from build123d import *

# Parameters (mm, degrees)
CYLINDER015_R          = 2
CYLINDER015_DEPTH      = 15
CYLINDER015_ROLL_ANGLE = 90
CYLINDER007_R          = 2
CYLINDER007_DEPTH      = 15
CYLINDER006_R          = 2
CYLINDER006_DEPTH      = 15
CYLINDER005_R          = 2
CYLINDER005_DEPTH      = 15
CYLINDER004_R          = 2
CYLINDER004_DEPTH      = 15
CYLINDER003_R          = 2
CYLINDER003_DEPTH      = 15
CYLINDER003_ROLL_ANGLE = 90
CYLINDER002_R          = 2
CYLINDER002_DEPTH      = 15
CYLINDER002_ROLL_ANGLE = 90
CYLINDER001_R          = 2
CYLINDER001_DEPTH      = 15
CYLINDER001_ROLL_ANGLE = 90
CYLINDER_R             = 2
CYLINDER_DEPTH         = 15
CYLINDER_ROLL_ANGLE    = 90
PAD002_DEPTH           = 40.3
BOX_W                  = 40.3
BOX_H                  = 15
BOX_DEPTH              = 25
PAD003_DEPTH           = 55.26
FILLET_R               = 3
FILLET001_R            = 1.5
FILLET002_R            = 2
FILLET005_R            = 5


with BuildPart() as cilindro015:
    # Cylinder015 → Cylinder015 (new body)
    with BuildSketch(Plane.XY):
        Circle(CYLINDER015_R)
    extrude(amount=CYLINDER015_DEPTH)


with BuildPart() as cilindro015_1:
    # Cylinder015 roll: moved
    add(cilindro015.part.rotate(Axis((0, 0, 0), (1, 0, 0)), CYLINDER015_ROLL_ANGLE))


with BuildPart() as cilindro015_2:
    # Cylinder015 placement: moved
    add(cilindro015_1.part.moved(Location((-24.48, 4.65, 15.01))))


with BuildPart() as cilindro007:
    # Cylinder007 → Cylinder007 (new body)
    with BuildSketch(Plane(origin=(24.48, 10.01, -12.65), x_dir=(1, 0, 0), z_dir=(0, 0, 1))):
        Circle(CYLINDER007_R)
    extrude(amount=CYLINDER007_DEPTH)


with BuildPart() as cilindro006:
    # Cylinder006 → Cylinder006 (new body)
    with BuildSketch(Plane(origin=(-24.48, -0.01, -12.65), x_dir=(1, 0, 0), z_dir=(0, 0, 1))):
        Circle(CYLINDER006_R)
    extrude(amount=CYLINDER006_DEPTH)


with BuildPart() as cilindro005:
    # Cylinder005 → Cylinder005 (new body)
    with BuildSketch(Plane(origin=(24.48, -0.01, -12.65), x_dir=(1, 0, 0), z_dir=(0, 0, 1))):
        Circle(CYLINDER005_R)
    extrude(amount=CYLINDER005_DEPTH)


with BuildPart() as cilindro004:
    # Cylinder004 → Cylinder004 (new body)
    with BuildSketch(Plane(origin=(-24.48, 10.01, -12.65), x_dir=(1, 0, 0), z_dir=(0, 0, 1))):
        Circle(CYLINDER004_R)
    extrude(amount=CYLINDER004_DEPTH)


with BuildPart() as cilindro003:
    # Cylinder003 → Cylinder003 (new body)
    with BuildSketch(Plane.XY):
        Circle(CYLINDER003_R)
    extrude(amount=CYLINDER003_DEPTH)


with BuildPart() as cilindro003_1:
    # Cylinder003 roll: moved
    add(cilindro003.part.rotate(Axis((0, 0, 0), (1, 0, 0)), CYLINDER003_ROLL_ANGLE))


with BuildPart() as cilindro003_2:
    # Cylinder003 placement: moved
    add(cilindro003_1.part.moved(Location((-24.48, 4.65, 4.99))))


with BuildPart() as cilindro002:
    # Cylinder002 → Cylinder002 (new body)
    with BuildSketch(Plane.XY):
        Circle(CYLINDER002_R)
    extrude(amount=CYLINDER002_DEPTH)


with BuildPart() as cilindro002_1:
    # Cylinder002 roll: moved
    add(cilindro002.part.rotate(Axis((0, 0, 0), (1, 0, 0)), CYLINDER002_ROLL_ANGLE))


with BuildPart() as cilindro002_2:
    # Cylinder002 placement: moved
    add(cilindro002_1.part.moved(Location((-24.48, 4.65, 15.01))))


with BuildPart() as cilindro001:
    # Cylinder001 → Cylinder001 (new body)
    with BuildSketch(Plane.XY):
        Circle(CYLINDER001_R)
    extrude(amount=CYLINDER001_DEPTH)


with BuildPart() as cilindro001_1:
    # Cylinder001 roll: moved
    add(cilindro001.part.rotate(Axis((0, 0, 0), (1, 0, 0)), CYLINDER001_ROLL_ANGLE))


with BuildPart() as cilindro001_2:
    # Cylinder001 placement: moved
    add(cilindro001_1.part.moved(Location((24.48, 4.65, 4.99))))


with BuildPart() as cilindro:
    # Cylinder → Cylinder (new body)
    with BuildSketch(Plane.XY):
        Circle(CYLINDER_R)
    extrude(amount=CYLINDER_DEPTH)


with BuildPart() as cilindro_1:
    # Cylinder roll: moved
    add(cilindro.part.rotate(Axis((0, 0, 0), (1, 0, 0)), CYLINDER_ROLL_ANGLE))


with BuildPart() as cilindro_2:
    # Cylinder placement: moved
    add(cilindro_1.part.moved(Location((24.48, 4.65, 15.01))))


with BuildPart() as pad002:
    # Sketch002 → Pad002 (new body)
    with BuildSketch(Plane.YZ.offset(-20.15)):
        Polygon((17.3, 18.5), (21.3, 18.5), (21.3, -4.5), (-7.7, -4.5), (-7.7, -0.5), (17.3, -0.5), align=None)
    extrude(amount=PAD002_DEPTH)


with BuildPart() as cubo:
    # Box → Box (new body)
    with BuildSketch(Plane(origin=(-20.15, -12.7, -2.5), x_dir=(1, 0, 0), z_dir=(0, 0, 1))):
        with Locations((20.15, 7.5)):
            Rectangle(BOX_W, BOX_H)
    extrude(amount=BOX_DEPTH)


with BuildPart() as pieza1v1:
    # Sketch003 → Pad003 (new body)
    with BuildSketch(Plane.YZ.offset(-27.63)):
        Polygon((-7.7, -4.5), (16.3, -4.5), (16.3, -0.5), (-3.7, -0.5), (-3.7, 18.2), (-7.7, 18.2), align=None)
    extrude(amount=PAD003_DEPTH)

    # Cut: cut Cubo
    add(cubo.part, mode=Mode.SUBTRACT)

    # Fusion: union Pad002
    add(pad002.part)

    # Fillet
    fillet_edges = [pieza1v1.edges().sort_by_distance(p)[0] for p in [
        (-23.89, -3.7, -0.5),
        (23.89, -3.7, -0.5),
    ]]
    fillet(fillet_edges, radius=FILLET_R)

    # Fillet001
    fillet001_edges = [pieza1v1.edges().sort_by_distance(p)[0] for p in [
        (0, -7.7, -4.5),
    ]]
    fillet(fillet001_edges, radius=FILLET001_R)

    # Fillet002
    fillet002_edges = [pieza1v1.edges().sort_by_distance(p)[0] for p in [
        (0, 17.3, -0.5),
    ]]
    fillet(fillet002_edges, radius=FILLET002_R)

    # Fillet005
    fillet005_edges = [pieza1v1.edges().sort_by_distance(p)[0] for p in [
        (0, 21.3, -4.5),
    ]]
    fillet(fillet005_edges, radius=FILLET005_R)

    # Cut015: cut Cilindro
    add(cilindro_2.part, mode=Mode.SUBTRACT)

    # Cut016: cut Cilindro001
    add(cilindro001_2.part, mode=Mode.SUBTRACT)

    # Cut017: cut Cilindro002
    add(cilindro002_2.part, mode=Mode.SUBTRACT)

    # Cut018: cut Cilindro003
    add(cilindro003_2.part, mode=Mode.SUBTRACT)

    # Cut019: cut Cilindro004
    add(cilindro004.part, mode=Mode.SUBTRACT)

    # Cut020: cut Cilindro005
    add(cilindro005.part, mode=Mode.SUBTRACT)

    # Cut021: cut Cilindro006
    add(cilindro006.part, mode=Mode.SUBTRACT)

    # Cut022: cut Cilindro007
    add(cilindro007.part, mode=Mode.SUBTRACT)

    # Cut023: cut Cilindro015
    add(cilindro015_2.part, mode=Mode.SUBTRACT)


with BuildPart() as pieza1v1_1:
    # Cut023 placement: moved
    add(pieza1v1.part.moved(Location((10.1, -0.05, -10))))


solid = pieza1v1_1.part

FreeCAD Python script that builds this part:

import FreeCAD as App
import Part
import Sketcher
from FreeCAD import Vector


def edges_at(feature, points):
    """Names of the edges that pass closest to the given points."""
    edges = feature.Shape.Edges
    near = lambda p: min(range(len(edges)), key=lambda i: edges[i].distToShape(Part.Vertex(*p))[0])
    return sorted({f"Edge{near(p) + 1}" for p in points})


def add_polygon(sketch, points):
    """Adds a closed chain of lines whose ends are joined by coincident constraints."""
    first, n = sketch.GeometryCount, len(points)
    for a, b in zip(points, points[1:] + points[:1]):
        sketch.addGeometry(Part.LineSegment(App.Vector(*a, 0), App.Vector(*b, 0)), False)
    for i in range(n):
        sketch.addConstraint(Sketcher.Constraint("Coincident", first + i, 2, first + (i + 1) % n, 1))

doc = App.newDocument("Part")
body = doc.addObject("PartDesign::Body", "Body")

# Sketch on XY plane
sketch1 = doc.addObject("Sketcher::SketchObject", "Sketch")
body.addObject(sketch1)
sketch1.AttachmentSupport = (doc.XY_Plane, [""])
sketch1.MapMode = "FlatFace"
sketch1.addGeometry(Part.Circle(Vector(0, 0, 0), Vector(0, 0, 1), 2), False)
sketch1.addConstraint([
    Sketcher.Constraint("Coincident", 0, 3, -1, 1),
    Sketcher.Constraint("Diameter", 0, 4.0),
])
pad1 = doc.addObject("PartDesign::Pad", "Pad")
body.addObject(pad1)
pad1.Profile = sketch1
pad1.Length = 15
body2 = doc.addObject("PartDesign::Body", "Body001")
doc.recompute()

body.Placement = App.Placement(Vector(0, 0, 0), App.Rotation(Vector(1, 0, 0), 90))
boolean = doc.addObject("PartDesign::Boolean", "Boolean")
body2.addObject(boolean)
boolean.Type = "Fuse"
boolean.addObjects([body])
body3 = doc.addObject("PartDesign::Body", "Body002")
doc.recompute()

body2.Placement = App.Placement(Vector(-24.48, 4.65, 15.01), App.Rotation(Vector(0, 0, 1), 0))
boolean2 = doc.addObject("PartDesign::Boolean", "Boolean001")
body3.addObject(boolean2)
boolean2.Type = "Fuse"
boolean2.addObjects([body2])
body4 = doc.addObject("PartDesign::Body", "Body003")

# Sketch on XY plane
sketch2 = doc.addObject("Sketcher::SketchObject", "Sketch001")
body4.addObject(sketch2)
sketch2.AttachmentSupport = (doc.getObject("XY_Plane003"), [""])
sketch2.MapMode = "FlatFace"
sketch2.AttachmentOffset = App.Placement(Vector(0, 0, -12.65), App.Rotation())
sketch2.addGeometry(Part.Circle(Vector(24.5, 10, 0), Vector(0, 0, 1), 2), False)
sketch2.addConstraint([
    Sketcher.Constraint("Diameter", 0, 4.0),
    Sketcher.Constraint("DistanceX", -1, 1, 0, 3, 24.48),
    Sketcher.Constraint("DistanceY", -1, 1, 0, 3, 10.01),
])
pad2 = doc.addObject("PartDesign::Pad", "Pad001")
body4.addObject(pad2)
pad2.Profile = sketch2
pad2.Length = 15
body5 = doc.addObject("PartDesign::Body", "Body004")

# Sketch on XY plane
sketch3 = doc.addObject("Sketcher::SketchObject", "Sketch002")
body5.addObject(sketch3)
sketch3.AttachmentSupport = (doc.getObject("XY_Plane004"), [""])
sketch3.MapMode = "FlatFace"
sketch3.AttachmentOffset = App.Placement(Vector(0, 0, -12.65), App.Rotation())
sketch3.addGeometry(Part.Circle(Vector(-24.5, 0, 0), Vector(0, 0, 1), 2), False)
sketch3.addConstraint([
    Sketcher.Constraint("Diameter", 0, 4.0),
    Sketcher.Constraint("DistanceX", 0, 3, -1, 1, 24.48),
    Sketcher.Constraint("DistanceY", 0, 3, -1, 1, 0.01),
])
pad3 = doc.addObject("PartDesign::Pad", "Pad002")
body5.addObject(pad3)
pad3.Profile = sketch3
pad3.Length = 15
body6 = doc.addObject("PartDesign::Body", "Body005")

# Sketch on XY plane
sketch4 = doc.addObject("Sketcher::SketchObject", "Sketch003")
body6.addObject(sketch4)
sketch4.AttachmentSupport = (doc.getObject("XY_Plane005"), [""])
sketch4.MapMode = "FlatFace"
sketch4.AttachmentOffset = App.Placement(Vector(0, 0, -12.65), App.Rotation())
sketch4.addGeometry(Part.Circle(Vector(24.5, 0, 0), Vector(0, 0, 1), 2), False)
sketch4.addConstraint([
    Sketcher.Constraint("Diameter", 0, 4.0),
    Sketcher.Constraint("DistanceX", -1, 1, 0, 3, 24.48),
    Sketcher.Constraint("DistanceY", 0, 3, -1, 1, 0.01),
])
pad4 = doc.addObject("PartDesign::Pad", "Pad003")
body6.addObject(pad4)
pad4.Profile = sketch4
pad4.Length = 15
body7 = doc.addObject("PartDesign::Body", "Body006")

# Sketch on XY plane
sketch5 = doc.addObject("Sketcher::SketchObject", "Sketch004")
body7.addObject(sketch5)
sketch5.AttachmentSupport = (doc.getObject("XY_Plane006"), [""])
sketch5.MapMode = "FlatFace"
sketch5.AttachmentOffset = App.Placement(Vector(0, 0, -12.65), App.Rotation())
sketch5.addGeometry(Part.Circle(Vector(-24.5, 10, 0), Vector(0, 0, 1), 2), False)
sketch5.addConstraint([
    Sketcher.Constraint("Diameter", 0, 4.0),
    Sketcher.Constraint("DistanceX", 0, 3, -1, 1, 24.48),
    Sketcher.Constraint("DistanceY", -1, 1, 0, 3, 10.01),
])
pad5 = doc.addObject("PartDesign::Pad", "Pad004")
body7.addObject(pad5)
pad5.Profile = sketch5
pad5.Length = 15
body8 = doc.addObject("PartDesign::Body", "Body007")

# Sketch on XY plane
sketch6 = doc.addObject("Sketcher::SketchObject", "Sketch005")
body8.addObject(sketch6)
sketch6.AttachmentSupport = (doc.getObject("XY_Plane007"), [""])
sketch6.MapMode = "FlatFace"
sketch6.addGeometry(Part.Circle(Vector(0, 0, 0), Vector(0, 0, 1), 2), False)
sketch6.addConstraint([
    Sketcher.Constraint("Coincident", 0, 3, -1, 1),
    Sketcher.Constraint("Diameter", 0, 4.0),
])
pad6 = doc.addObject("PartDesign::Pad", "Pad005")
body8.addObject(pad6)
pad6.Profile = sketch6
pad6.Length = 15
body9 = doc.addObject("PartDesign::Body", "Body008")
doc.recompute()

body8.Placement = App.Placement(Vector(0, 0, 0), App.Rotation(Vector(1, 0, 0), 90))
boolean3 = doc.addObject("PartDesign::Boolean", "Boolean002")
body9.addObject(boolean3)
boolean3.Type = "Fuse"
boolean3.addObjects([body8])
body10 = doc.addObject("PartDesign::Body", "Body009")
doc.recompute()

body9.Placement = App.Placement(Vector(-24.48, 4.65, 4.99), App.Rotation(Vector(0, 0, 1), 0))
boolean4 = doc.addObject("PartDesign::Boolean", "Boolean003")
body10.addObject(boolean4)
boolean4.Type = "Fuse"
boolean4.addObjects([body9])
body11 = doc.addObject("PartDesign::Body", "Body010")

# Sketch on XY plane
sketch7 = doc.addObject("Sketcher::SketchObject", "Sketch006")
body11.addObject(sketch7)
sketch7.AttachmentSupport = (doc.getObject("XY_Plane010"), [""])
sketch7.MapMode = "FlatFace"
sketch7.addGeometry(Part.Circle(Vector(0, 0, 0), Vector(0, 0, 1), 2), False)
sketch7.addConstraint([
    Sketcher.Constraint("Coincident", 0, 3, -1, 1),
    Sketcher.Constraint("Diameter", 0, 4.0),
])
pad7 = doc.addObject("PartDesign::Pad", "Pad006")
body11.addObject(pad7)
pad7.Profile = sketch7
pad7.Length = 15
body12 = doc.addObject("PartDesign::Body", "Body011")
doc.recompute()

body11.Placement = App.Placement(Vector(0, 0, 0), App.Rotation(Vector(1, 0, 0), 90))
boolean5 = doc.addObject("PartDesign::Boolean", "Boolean004")
body12.addObject(boolean5)
boolean5.Type = "Fuse"
boolean5.addObjects([body11])
body13 = doc.addObject("PartDesign::Body", "Body012")
doc.recompute()

body12.Placement = App.Placement(Vector(-24.48, 4.65, 15.01), App.Rotation(Vector(0, 0, 1), 0))
boolean6 = doc.addObject("PartDesign::Boolean", "Boolean005")
body13.addObject(boolean6)
boolean6.Type = "Fuse"
boolean6.addObjects([body12])
body14 = doc.addObject("PartDesign::Body", "Body013")

# Sketch on XY plane
sketch8 = doc.addObject("Sketcher::SketchObject", "Sketch007")
body14.addObject(sketch8)
sketch8.AttachmentSupport = (doc.getObject("XY_Plane013"), [""])
sketch8.MapMode = "FlatFace"
sketch8.addGeometry(Part.Circle(Vector(0, 0, 0), Vector(0, 0, 1), 2), False)
sketch8.addConstraint([
    Sketcher.Constraint("Coincident", 0, 3, -1, 1),
    Sketcher.Constraint("Diameter", 0, 4.0),
])
pad8 = doc.addObject("PartDesign::Pad", "Pad007")
body14.addObject(pad8)
pad8.Profile = sketch8
pad8.Length = 15
body15 = doc.addObject("PartDesign::Body", "Body014")
doc.recompute()

body14.Placement = App.Placement(Vector(0, 0, 0), App.Rotation(Vector(1, 0, 0), 90))
boolean7 = doc.addObject("PartDesign::Boolean", "Boolean006")
body15.addObject(boolean7)
boolean7.Type = "Fuse"
boolean7.addObjects([body14])
body16 = doc.addObject("PartDesign::Body", "Body015")
doc.recompute()

body15.Placement = App.Placement(Vector(24.48, 4.65, 4.99), App.Rotation(Vector(0, 0, 1), 0))
boolean8 = doc.addObject("PartDesign::Boolean", "Boolean007")
body16.addObject(boolean8)
boolean8.Type = "Fuse"
boolean8.addObjects([body15])
body17 = doc.addObject("PartDesign::Body", "Body016")

# Sketch on XY plane
sketch9 = doc.addObject("Sketcher::SketchObject", "Sketch008")
body17.addObject(sketch9)
sketch9.AttachmentSupport = (doc.getObject("XY_Plane016"), [""])
sketch9.MapMode = "FlatFace"
sketch9.addGeometry(Part.Circle(Vector(0, 0, 0), Vector(0, 0, 1), 2), False)
sketch9.addConstraint([
    Sketcher.Constraint("Coincident", 0, 3, -1, 1),
    Sketcher.Constraint("Diameter", 0, 4.0),
])
pad9 = doc.addObject("PartDesign::Pad", "Pad008")
body17.addObject(pad9)
pad9.Profile = sketch9
pad9.Length = 15
body18 = doc.addObject("PartDesign::Body", "Body017")
doc.recompute()

body17.Placement = App.Placement(Vector(0, 0, 0), App.Rotation(Vector(1, 0, 0), 90))
boolean9 = doc.addObject("PartDesign::Boolean", "Boolean008")
body18.addObject(boolean9)
boolean9.Type = "Fuse"
boolean9.addObjects([body17])
body19 = doc.addObject("PartDesign::Body", "Body018")
doc.recompute()

body18.Placement = App.Placement(Vector(24.48, 4.65, 15.01), App.Rotation(Vector(0, 0, 1), 0))
boolean10 = doc.addObject("PartDesign::Boolean", "Boolean009")
body19.addObject(boolean10)
boolean10.Type = "Fuse"
boolean10.addObjects([body18])
body20 = doc.addObject("PartDesign::Body", "Body019")

# Sketch on YZ plane
sketch10 = doc.addObject("Sketcher::SketchObject", "Sketch009")
body20.addObject(sketch10)
sketch10.AttachmentSupport = (doc.getObject("YZ_Plane019"), [""])
sketch10.MapMode = "FlatFace"
sketch10.AttachmentOffset = App.Placement(Vector(0, 0, -20.15), App.Rotation())
add_polygon(sketch10, [(21.3, 18.5), (17.3, 18.5), (17.3, -0.5), (-7.7, -0.5), (-7.7, -4.5), (21.3, -4.5)])  # lines 0-5
sketch10.addConstraint([
    Sketcher.Constraint("Horizontal", 0),
    Sketcher.Constraint("Vertical", 1),
    Sketcher.Constraint("Horizontal", 2),
    Sketcher.Constraint("Vertical", 3),
    Sketcher.Constraint("Horizontal", 4),
    Sketcher.Constraint("Vertical", 5),
    Sketcher.Constraint("Equal", 0, 3),
    Sketcher.Constraint("DistanceX", 0, 2, 0, 1, 4.0),
    Sketcher.Constraint("DistanceX", 2, 2, 2, 1, 25.0),
    Sketcher.Constraint("DistanceY", 1, 2, 1, 1, 19.0),
    Sketcher.Constraint("DistanceX", -1, 1, 0, 2, 17.3),
    Sketcher.Constraint("DistanceY", -1, 1, 0, 2, 18.5),
])
pad10 = doc.addObject("PartDesign::Pad", "Pad009")
body20.addObject(pad10)
pad10.Profile = sketch10
pad10.Length = 40.3
body21 = doc.addObject("PartDesign::Body", "Body020")

# Sketch on XY plane
sketch11 = doc.addObject("Sketcher::SketchObject", "Sketch010")
body21.addObject(sketch11)
sketch11.AttachmentSupport = (doc.getObject("XY_Plane020"), [""])
sketch11.MapMode = "FlatFace"
sketch11.AttachmentOffset = App.Placement(Vector(0, 0, -2.5), App.Rotation())
add_polygon(sketch11, [(-20, 2), (-20, -13), (20, -13), (20, 2)])  # lines 0-3
sketch11.addConstraint([
    Sketcher.Constraint("Vertical", 0),
    Sketcher.Constraint("Horizontal", 1),
    Sketcher.Constraint("Vertical", 2),
    Sketcher.Constraint("Horizontal", 3),
    Sketcher.Constraint("DistanceY", 0, 2, 0, 1, 15.0),
    Sketcher.Constraint("DistanceX", 1, 1, 1, 2, 40.3),
    Sketcher.Constraint("DistanceY", 0, 2, -1, 1, 12.7),
    Sketcher.Constraint("DistanceX", 0, 2, -1, 1, 20.15),
])
pad11 = doc.addObject("PartDesign::Pad", "Pad010")
body21.addObject(pad11)
pad11.Profile = sketch11
pad11.Length = 25
body22 = doc.addObject("PartDesign::Body", "Body021")

# Sketch on YZ plane
sketch12 = doc.addObject("Sketcher::SketchObject", "Sketch011")
body22.addObject(sketch12)
sketch12.AttachmentSupport = (doc.getObject("YZ_Plane021"), [""])
sketch12.MapMode = "FlatFace"
sketch12.AttachmentOffset = App.Placement(Vector(0, 0, -27.63), App.Rotation())
add_polygon(sketch12, [(-7.7, -4.5), (16.3, -4.5), (16.3, -0.5), (-3.7, -0.5), (-3.7, 18.2), (-7.7, 18.2)])  # lines 0-5
sketch12.addConstraint([
    Sketcher.Constraint("Horizontal", 0),
    Sketcher.Constraint("Vertical", 1),
    Sketcher.Constraint("Horizontal", 2),
    Sketcher.Constraint("Vertical", 3),
    Sketcher.Constraint("Horizontal", 4),
    Sketcher.Constraint("Vertical", 5),
    Sketcher.Constraint("Equal", 4, 1),
    Sketcher.Constraint("DistanceX", 0, 1, 0, 2, 24.0),
    Sketcher.Constraint("DistanceX", 2, 2, 2, 1, 20.0),
    Sketcher.Constraint("DistanceY", 3, 1, 3, 2, 18.7),
    Sketcher.Constraint("DistanceX", -1, 1, 0, 2, 16.3),
    Sketcher.Constraint("DistanceY", 0, 2, -1, 1, 4.5),
])
pad12 = doc.addObject("PartDesign::Pad", "Pad011")
body22.addObject(pad12)
pad12.Profile = sketch12
pad12.Length = 55.26
doc.recompute()

boolean11 = doc.addObject("PartDesign::Boolean", "Boolean010")
body22.addObject(boolean11)
boolean11.Type = "Cut"
boolean11.addObjects([body21])
doc.recompute()

boolean12 = doc.addObject("PartDesign::Boolean", "Boolean011")
body22.addObject(boolean12)
boolean12.Type = "Fuse"
boolean12.addObjects([body20])
doc.recompute()

fillet = doc.addObject("PartDesign::Fillet", "Fillet")
body22.addObject(fillet)
fillet.Base = (boolean12, edges_at(boolean12, [(-23.89, -3.7, -0.5), (23.89, -3.7, -0.5)]))
fillet.Radius = 3
doc.recompute()

fillet2 = doc.addObject("PartDesign::Fillet", "Fillet001")
body22.addObject(fillet2)
fillet2.Base = (fillet, edges_at(fillet, [(0, -7.7, -4.5)]))
fillet2.Radius = 1.5
doc.recompute()

fillet3 = doc.addObject("PartDesign::Fillet", "Fillet002")
body22.addObject(fillet3)
fillet3.Base = (fillet2, edges_at(fillet2, [(0, 17.3, -0.5)]))
fillet3.Radius = 2
doc.recompute()

fillet4 = doc.addObject("PartDesign::Fillet", "Fillet003")
body22.addObject(fillet4)
fillet4.Base = (fillet3, edges_at(fillet3, [(0, 21.3, -4.5)]))
fillet4.Radius = 5
doc.recompute()

boolean13 = doc.addObject("PartDesign::Boolean", "Boolean012")
body22.addObject(boolean13)
boolean13.Type = "Cut"
boolean13.addObjects([body19])
doc.recompute()

boolean14 = doc.addObject("PartDesign::Boolean", "Boolean013")
body22.addObject(boolean14)
boolean14.Type = "Cut"
boolean14.addObjects([body16])
doc.recompute()

boolean15 = doc.addObject("PartDesign::Boolean", "Boolean014")
body22.addObject(boolean15)
boolean15.Type = "Cut"
boolean15.addObjects([body13])
doc.recompute()

boolean16 = doc.addObject("PartDesign::Boolean", "Boolean015")
body22.addObject(boolean16)
boolean16.Type = "Cut"
boolean16.addObjects([body10])
doc.recompute()

boolean17 = doc.addObject("PartDesign::Boolean", "Boolean016")
body22.addObject(boolean17)
boolean17.Type = "Cut"
boolean17.addObjects([body7])
doc.recompute()

boolean18 = doc.addObject("PartDesign::Boolean", "Boolean017")
body22.addObject(boolean18)
boolean18.Type = "Cut"
boolean18.addObjects([body6])
doc.recompute()

boolean19 = doc.addObject("PartDesign::Boolean", "Boolean018")
body22.addObject(boolean19)
boolean19.Type = "Cut"
boolean19.addObjects([body5])
doc.recompute()

boolean20 = doc.addObject("PartDesign::Boolean", "Boolean019")
body22.addObject(boolean20)
boolean20.Type = "Cut"
boolean20.addObjects([body4])
doc.recompute()

boolean21 = doc.addObject("PartDesign::Boolean", "Boolean020")
body22.addObject(boolean21)
boolean21.Type = "Cut"
boolean21.addObjects([body3])
body23 = doc.addObject("PartDesign::Body", "Body022")
doc.recompute()

body22.Placement = App.Placement(Vector(10.1, -0.05, -10), App.Rotation(Vector(0, 0, 1), 0))
boolean22 = doc.addObject("PartDesign::Boolean", "Boolean021")
body23.addObject(boolean22)
boolean22.Type = "Fuse"
boolean22.addObjects([body22])

doc.recompute()
